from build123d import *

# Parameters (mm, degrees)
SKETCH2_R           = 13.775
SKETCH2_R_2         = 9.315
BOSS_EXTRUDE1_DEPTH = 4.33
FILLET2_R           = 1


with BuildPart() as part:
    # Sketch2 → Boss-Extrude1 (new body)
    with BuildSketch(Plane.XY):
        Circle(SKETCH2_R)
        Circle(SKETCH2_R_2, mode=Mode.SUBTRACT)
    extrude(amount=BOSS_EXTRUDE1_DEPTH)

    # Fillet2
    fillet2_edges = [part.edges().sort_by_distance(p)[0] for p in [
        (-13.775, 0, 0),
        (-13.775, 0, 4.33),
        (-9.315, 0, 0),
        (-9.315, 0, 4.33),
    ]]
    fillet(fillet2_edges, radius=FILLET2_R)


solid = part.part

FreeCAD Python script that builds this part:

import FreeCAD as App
import Part
import Sketcher
from FreeCAD import Vector


def edges_at(feature, points):
    """Names of the edges that pass closest to the given points."""
    edges = feature.Shape.Edges
    near = lambda p: min(range(len(edges)), key=lambda i: edges[i].distToShape(Part.Vertex(*p))[0])
    return sorted({f"Edge{near(p) + 1}" for p in points})

doc = App.newDocument("Part")
body = doc.addObject("PartDesign::Body", "Body")

# Sketch on XY plane
sketch1 = doc.addObject("Sketcher::SketchObject", "Sketch")
body.addObject(sketch1)
sketch1.AttachmentSupport = (doc.XY_Plane, [""])
sketch1.MapMode = "FlatFace"
sketch1.addGeometry(Part.Circle(Vector(0, 0, 0), Vector(0, 0, 1), 14), False)
sketch1.addGeometry(Part.Circle(Vector(0, 0, 0), Vector(0, 0, 1), 9), False)
sketch1.addConstraint(Sketcher.Constraint("Coincident", 0, 3, -1, 1))
sketch1.addConstraint(Sketcher.Constraint("Coincident", 1, 3, -1, 1))
sketch1.addConstraint(Sketcher.Constraint("Diameter", 0, 27.55))
sketch1.addConstraint(Sketcher.Constraint("Diameter", 1, 18.63))
pad1 = doc.addObject("PartDesign::Pad", "Pad")
body.addObject(pad1)
pad1.Profile = sketch1
pad1.Length = 4.33
doc.recompute()

fillet = doc.addObject("PartDesign::Fillet", "Fillet")
body.addObject(fillet)
fillet.Base = (pad1, edges_at(pad1, [
    (-13.775, 0, 0),
    (-13.775, 0, 4.33),
    (-9.315, 0, 0),
    (-9.315, 0, 4.33),
]))
fillet.Radius = 1

doc.recompute()
